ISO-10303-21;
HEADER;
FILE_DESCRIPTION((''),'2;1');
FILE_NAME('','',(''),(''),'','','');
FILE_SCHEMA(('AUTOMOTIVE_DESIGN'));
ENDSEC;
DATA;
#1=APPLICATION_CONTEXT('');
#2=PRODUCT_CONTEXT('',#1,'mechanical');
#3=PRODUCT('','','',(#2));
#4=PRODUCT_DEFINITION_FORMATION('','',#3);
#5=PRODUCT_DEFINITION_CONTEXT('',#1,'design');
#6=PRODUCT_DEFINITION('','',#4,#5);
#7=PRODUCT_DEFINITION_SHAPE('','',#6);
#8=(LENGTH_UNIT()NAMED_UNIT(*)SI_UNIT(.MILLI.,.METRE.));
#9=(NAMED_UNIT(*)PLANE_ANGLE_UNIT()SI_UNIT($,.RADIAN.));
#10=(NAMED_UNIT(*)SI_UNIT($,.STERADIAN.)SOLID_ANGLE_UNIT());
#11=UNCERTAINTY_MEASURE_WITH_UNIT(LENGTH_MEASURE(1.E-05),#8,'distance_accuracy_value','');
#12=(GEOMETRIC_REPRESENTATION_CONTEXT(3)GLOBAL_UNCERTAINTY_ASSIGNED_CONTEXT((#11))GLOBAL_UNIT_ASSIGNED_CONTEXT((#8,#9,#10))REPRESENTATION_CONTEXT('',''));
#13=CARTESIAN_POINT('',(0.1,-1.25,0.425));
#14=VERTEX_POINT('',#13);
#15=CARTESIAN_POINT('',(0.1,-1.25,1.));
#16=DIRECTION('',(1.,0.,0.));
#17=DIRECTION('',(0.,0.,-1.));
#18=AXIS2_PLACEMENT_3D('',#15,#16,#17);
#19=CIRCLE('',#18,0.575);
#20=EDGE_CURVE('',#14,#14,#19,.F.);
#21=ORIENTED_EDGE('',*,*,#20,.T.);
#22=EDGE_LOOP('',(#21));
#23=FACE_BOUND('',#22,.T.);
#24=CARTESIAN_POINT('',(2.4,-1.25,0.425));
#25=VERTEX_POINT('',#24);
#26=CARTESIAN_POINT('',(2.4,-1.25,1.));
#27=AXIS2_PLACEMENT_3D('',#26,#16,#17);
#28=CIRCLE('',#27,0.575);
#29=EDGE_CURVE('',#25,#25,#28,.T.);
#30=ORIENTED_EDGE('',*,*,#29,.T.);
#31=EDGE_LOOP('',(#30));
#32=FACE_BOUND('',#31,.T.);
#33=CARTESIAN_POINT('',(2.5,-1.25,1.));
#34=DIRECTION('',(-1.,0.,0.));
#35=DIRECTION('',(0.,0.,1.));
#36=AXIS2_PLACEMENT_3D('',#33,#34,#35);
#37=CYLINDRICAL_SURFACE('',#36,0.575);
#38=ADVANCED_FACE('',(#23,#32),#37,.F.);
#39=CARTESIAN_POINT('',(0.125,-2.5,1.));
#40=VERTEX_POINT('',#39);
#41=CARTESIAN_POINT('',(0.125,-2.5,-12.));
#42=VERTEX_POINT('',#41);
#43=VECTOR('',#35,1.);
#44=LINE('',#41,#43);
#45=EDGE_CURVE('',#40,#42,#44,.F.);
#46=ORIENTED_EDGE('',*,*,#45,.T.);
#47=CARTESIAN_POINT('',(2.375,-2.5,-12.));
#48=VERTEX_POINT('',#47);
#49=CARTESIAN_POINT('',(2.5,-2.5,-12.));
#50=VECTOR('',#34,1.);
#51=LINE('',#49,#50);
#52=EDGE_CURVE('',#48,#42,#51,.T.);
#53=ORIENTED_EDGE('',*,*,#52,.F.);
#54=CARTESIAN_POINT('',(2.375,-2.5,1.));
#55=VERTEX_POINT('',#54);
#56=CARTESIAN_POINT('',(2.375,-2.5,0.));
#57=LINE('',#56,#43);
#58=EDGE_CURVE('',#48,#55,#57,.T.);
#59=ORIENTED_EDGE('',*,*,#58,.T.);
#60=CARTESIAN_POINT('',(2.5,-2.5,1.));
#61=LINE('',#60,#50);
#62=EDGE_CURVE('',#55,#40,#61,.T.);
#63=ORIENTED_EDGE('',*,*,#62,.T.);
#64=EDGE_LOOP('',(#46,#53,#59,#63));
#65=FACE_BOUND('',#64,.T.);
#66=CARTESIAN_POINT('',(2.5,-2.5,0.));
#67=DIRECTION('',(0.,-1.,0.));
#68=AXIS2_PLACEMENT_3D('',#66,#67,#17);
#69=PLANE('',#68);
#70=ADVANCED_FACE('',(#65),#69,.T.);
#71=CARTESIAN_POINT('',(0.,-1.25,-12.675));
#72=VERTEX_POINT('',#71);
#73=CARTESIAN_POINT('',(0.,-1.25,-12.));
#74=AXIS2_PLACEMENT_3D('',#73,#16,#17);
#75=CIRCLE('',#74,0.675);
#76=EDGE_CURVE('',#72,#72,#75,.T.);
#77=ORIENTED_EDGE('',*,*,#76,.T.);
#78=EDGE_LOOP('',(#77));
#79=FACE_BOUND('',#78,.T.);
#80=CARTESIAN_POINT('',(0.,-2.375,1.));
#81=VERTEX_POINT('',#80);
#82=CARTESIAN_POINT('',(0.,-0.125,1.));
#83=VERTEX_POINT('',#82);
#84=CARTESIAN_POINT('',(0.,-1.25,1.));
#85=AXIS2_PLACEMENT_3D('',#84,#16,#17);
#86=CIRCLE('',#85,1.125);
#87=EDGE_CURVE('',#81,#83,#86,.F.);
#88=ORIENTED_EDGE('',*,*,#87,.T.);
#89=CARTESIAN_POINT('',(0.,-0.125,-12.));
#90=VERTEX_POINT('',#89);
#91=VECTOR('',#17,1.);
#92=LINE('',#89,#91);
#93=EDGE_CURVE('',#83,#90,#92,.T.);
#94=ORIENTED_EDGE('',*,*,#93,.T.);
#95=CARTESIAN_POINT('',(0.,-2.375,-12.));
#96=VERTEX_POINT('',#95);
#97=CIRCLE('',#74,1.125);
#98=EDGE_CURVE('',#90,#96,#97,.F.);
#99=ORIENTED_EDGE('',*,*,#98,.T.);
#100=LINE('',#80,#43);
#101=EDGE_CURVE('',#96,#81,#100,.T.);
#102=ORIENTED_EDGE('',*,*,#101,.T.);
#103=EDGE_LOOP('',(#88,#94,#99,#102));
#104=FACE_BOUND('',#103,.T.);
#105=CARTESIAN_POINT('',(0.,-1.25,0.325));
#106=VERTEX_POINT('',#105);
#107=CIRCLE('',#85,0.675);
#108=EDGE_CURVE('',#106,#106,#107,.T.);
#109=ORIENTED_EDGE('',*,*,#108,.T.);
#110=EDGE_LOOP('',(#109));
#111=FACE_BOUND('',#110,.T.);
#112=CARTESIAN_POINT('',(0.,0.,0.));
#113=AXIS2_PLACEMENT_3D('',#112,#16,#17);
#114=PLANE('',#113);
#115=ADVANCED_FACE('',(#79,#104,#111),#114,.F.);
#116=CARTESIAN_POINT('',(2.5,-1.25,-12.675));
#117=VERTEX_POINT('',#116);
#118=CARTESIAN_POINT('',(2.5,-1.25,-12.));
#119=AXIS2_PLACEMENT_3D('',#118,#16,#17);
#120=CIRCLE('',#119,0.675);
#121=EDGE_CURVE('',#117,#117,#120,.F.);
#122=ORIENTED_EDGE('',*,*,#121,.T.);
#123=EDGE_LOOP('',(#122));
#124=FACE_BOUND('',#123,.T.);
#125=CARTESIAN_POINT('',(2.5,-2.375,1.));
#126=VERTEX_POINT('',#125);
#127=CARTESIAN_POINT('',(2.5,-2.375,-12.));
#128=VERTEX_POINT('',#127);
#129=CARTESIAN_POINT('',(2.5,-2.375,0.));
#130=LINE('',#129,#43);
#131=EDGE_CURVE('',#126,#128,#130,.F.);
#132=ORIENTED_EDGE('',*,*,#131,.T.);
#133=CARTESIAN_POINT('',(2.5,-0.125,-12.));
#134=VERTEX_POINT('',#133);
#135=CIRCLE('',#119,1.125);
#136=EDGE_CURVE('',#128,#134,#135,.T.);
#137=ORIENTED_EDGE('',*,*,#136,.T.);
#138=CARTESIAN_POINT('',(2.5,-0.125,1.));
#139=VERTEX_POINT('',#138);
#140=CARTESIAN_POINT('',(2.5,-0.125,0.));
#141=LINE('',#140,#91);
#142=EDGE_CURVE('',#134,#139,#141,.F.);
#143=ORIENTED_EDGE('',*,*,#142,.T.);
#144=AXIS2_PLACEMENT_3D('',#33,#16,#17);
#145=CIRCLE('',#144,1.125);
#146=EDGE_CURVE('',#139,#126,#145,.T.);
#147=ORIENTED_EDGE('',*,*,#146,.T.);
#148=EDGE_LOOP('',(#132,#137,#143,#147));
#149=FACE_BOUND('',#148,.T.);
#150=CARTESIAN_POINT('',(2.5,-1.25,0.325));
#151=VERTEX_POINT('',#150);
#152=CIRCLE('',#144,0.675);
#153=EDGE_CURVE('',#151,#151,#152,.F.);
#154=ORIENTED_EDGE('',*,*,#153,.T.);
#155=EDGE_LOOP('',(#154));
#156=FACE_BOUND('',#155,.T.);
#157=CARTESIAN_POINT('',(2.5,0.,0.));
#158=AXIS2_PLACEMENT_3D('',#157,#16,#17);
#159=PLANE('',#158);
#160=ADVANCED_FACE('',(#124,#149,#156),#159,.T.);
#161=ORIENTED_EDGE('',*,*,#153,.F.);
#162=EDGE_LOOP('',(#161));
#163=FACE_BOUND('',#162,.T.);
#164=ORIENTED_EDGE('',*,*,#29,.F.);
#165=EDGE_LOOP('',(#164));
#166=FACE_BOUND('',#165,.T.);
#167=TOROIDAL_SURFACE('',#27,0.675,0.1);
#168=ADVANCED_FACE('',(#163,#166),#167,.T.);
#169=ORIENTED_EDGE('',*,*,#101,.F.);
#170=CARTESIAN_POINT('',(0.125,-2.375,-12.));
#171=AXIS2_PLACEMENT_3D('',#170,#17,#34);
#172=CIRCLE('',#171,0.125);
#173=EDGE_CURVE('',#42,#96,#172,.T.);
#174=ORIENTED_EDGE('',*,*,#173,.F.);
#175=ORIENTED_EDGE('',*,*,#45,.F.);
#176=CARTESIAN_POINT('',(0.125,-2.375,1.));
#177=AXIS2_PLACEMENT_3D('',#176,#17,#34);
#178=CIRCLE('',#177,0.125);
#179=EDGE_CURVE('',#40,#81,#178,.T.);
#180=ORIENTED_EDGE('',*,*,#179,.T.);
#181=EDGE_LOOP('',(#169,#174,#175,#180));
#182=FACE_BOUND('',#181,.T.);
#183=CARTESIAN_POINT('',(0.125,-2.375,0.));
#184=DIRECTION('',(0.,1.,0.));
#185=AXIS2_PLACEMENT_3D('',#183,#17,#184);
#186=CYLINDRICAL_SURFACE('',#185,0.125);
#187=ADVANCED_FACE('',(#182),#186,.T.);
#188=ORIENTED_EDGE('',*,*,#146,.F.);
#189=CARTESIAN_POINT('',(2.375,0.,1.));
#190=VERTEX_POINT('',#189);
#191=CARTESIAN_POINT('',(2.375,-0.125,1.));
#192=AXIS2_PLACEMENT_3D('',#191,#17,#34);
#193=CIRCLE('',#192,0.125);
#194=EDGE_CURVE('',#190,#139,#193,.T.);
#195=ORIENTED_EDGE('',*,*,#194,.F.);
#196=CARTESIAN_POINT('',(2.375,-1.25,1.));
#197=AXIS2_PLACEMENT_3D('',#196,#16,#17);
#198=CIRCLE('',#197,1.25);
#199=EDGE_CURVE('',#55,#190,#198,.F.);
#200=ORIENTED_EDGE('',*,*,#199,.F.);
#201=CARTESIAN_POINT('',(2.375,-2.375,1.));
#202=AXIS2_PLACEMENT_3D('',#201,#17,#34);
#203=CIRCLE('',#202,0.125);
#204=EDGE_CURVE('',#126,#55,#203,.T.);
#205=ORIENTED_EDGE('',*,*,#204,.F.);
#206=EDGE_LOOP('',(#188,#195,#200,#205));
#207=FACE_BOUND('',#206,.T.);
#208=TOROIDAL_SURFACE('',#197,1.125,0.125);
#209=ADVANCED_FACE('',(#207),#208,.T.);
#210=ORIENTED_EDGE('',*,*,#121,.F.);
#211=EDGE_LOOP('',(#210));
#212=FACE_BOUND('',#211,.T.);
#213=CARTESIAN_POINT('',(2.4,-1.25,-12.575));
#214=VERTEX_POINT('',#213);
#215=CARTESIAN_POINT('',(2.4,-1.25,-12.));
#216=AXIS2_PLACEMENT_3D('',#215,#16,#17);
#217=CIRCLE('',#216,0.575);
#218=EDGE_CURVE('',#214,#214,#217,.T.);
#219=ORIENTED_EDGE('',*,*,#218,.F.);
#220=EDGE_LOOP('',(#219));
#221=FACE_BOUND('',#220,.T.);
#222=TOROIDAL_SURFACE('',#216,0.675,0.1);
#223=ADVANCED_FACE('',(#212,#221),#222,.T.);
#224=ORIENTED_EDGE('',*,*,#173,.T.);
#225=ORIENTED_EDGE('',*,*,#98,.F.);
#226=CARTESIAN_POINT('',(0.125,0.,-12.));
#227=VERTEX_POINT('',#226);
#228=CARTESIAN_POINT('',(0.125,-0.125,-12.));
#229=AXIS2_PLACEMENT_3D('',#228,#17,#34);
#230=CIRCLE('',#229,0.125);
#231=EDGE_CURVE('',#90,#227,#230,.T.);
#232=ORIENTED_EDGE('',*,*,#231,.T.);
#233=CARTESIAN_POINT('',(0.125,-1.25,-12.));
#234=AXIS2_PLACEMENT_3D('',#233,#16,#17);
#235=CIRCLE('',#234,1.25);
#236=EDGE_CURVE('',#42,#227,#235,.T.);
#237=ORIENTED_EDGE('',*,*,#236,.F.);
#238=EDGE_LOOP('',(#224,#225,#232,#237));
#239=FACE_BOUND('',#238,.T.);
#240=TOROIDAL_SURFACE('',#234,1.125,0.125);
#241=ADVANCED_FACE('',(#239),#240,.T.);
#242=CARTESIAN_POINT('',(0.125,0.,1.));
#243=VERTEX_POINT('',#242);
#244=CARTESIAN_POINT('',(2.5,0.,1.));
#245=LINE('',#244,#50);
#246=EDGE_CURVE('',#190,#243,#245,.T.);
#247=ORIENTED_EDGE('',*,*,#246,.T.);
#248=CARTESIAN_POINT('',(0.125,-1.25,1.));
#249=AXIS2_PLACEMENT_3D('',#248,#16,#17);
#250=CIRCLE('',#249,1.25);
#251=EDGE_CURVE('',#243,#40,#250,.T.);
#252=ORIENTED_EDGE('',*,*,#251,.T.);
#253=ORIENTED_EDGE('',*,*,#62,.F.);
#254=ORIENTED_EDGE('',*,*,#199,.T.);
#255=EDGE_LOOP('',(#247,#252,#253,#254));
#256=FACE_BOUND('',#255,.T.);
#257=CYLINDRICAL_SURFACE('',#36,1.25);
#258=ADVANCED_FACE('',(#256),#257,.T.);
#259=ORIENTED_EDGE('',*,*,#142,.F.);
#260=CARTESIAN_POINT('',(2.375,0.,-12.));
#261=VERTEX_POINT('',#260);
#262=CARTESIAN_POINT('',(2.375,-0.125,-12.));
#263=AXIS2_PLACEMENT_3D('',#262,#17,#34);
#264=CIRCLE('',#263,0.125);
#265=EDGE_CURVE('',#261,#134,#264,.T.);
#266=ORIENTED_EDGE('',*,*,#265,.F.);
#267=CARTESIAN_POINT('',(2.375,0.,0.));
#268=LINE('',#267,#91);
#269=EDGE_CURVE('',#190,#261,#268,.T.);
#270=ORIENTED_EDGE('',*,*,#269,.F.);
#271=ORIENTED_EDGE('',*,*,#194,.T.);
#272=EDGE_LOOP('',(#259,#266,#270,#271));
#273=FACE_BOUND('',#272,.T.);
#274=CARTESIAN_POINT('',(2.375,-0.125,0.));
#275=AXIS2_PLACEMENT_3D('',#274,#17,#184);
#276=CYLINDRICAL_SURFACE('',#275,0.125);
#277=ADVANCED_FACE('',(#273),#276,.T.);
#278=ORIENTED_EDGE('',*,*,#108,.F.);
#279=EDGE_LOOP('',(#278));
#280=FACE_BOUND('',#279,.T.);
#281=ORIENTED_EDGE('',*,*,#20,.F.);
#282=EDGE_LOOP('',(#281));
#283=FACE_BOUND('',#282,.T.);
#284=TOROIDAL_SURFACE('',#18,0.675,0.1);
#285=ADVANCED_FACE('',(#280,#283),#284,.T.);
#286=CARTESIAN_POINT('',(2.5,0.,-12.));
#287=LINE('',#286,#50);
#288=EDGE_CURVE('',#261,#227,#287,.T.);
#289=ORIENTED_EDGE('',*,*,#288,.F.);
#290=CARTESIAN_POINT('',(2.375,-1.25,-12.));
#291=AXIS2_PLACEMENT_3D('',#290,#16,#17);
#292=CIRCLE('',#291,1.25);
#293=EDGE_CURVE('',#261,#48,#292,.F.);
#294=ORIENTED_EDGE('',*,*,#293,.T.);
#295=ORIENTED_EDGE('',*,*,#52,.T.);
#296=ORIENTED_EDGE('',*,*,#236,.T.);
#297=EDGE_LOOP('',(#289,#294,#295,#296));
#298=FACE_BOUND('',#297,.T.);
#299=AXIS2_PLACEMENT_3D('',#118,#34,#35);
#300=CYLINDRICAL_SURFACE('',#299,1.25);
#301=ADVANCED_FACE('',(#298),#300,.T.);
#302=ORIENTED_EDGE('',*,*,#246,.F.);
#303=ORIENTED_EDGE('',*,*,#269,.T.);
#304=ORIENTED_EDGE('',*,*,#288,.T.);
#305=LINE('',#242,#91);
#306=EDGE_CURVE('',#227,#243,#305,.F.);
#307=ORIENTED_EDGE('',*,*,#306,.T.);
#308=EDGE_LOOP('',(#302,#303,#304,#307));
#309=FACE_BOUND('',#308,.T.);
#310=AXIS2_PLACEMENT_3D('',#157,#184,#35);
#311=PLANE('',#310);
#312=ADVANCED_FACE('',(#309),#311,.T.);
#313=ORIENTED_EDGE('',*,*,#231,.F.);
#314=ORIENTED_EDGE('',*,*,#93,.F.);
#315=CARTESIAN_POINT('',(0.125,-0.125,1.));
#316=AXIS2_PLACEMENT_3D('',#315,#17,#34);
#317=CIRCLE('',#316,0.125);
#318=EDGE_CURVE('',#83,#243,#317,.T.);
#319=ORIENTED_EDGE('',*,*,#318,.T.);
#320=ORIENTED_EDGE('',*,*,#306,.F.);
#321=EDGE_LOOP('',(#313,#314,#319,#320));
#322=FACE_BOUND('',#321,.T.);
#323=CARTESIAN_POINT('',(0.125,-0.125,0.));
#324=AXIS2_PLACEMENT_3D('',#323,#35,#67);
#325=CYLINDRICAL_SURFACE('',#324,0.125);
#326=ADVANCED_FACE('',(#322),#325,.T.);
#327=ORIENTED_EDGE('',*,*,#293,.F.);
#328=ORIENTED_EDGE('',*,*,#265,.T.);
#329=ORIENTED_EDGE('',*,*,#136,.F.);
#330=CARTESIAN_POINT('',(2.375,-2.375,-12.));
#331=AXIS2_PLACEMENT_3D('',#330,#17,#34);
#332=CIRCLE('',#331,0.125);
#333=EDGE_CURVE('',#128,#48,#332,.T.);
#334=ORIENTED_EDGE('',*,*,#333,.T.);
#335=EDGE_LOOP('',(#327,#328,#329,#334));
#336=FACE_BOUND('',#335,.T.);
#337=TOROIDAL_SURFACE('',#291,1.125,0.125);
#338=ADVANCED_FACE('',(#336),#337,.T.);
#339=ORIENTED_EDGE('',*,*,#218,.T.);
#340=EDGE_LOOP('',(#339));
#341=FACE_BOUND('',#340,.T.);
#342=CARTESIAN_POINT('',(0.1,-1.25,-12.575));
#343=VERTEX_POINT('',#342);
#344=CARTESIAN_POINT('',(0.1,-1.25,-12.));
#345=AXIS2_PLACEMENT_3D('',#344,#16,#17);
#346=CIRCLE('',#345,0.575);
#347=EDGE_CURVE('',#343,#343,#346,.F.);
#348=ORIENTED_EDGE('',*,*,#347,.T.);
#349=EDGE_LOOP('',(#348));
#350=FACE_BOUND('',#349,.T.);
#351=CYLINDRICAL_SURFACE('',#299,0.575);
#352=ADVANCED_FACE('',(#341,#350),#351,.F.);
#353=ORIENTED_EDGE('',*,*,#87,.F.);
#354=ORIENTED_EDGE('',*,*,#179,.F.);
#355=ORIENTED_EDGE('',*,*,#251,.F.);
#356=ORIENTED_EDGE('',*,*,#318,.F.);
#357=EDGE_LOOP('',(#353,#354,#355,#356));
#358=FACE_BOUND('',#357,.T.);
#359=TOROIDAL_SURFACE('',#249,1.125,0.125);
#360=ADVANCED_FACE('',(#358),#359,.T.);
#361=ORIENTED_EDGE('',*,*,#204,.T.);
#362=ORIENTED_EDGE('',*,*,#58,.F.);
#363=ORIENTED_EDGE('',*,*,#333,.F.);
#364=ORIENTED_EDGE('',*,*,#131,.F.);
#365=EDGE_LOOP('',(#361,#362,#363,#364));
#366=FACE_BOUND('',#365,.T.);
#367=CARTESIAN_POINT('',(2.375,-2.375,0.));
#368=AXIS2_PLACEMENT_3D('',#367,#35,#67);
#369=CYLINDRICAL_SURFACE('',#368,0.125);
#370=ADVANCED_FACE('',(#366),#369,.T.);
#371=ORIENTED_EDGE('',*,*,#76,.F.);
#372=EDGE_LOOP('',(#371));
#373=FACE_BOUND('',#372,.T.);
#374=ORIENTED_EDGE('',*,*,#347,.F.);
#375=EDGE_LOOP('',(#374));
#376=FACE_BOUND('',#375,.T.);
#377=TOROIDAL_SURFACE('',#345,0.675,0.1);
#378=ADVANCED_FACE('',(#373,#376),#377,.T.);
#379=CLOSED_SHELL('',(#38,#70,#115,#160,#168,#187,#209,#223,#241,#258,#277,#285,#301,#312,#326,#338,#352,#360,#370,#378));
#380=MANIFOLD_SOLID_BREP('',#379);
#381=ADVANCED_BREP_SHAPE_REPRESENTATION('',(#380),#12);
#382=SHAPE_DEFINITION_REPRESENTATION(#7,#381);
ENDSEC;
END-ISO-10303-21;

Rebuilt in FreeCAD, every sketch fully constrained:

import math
import FreeCAD as App
import Part
import Sketcher
from FreeCAD import Vector
Q = App.Units.Quantity


def edges_at(feature, points):
    """Names of the edges that pass closest to the given points."""
    edges = feature.Shape.Edges
    near = lambda p: min(range(len(edges)), key=lambda i: edges[i].distToShape(Part.Vertex(*p))[0])
    return sorted({f"Edge{near(p) + 1}" for p in points})

doc = App.newDocument("Part")
body = doc.addObject("PartDesign::Body", "Body")

# Sketch on YZ plane
sketch1 = body.newObject("Sketcher::SketchObject", "Sketch")
sketch1.AttachmentSupport = (doc.getObject("YZ_Plane"), [""])
sketch1.MapMode = "FlatFace"
sketch1.addGeometry([
    Part.ArcOfCircle(Part.Circle(Vector(-1.25, -12, 0), Vector(0, 0, 1), 1.25), math.radians(180), math.radians(360)),  # 0
    Part.LineSegment(Vector(0, -12, 0), Vector(0, 1, 0)),  # 1
    Part.ArcOfCircle(Part.Circle(Vector(-1.25, 1, 0), Vector(0, 0, 1), 1.25), math.radians(0), math.radians(180)),  # 2
    Part.LineSegment(Vector(-2.5, 1, 0), Vector(-2.5, -12, 0)),  # 3
    Part.Circle(Vector(-1.25, -12, 0), Vector(0, 0, 1), 0.575),  # 4
    Part.Circle(Vector(-1.25, 1, 0), Vector(0, 0, 1), 0.575),  # 5
], False)
sketch1.addConstraint([
    Sketcher.Constraint("Tangent", 0, 2, 1, 1),
    Sketcher.Constraint("Tangent", 1, 2, 2, 1),
    Sketcher.Constraint("Tangent", 2, 2, 3, 1),
    Sketcher.Constraint("Tangent", 3, 2, 0, 1),
    Sketcher.Constraint("Vertical", 1),
    Sketcher.Constraint("Vertical", 3),
    Sketcher.Constraint("Coincident", 4, 3, 0, 3),
    Sketcher.Constraint("Coincident", 5, 3, 2, 3),
    Sketcher.Constraint("Equal", 4, 5),
    Sketcher.Constraint("PointOnObject", 0, 2, -2),
    Sketcher.Constraint("Diameter", 4, Q("1.15 mm")),
    Sketcher.Constraint("DistanceY", 1, 1, 1, 2, Q("13 mm")),
    Sketcher.Constraint("Radius", 0, Q("1.25 mm")),
    Sketcher.Constraint("DistanceY", 0, 3, -1, 1, Q("12 mm")),
])
pad1 = body.newObject("PartDesign::Pad", "Pad")
pad1.Profile = sketch1
pad1.Length = 2.5
doc.recompute()

fillet = body.newObject("PartDesign::Fillet", "Fillet")
fillet.Base = (pad1, edges_at(pad1, [
    (0, -1.25, 2.25),
    (0, 0, -5.5),
    (0, -1.25, -13.25),
    (2.5, 0, -5.5),
    (2.5, -1.25, 2.25),
    (2.5, -2.5, -5.5),
    (2.5, -1.25, -13.25),
    (0, -2.5, -5.5),
]))
fillet.Radius = 0.125
doc.recompute()

fillet2 = body.newObject("PartDesign::Fillet", "Fillet001")
fillet2.Base = (fillet, edges_at(fillet, [
    (2.5, -1.25, -11.425),
    (2.5, -1.25, 1.575),
    (0, -1.25, 1.575),
    (0, -1.25, -11.425),
]))
fillet2.Radius = 0.1

doc.recompute()
